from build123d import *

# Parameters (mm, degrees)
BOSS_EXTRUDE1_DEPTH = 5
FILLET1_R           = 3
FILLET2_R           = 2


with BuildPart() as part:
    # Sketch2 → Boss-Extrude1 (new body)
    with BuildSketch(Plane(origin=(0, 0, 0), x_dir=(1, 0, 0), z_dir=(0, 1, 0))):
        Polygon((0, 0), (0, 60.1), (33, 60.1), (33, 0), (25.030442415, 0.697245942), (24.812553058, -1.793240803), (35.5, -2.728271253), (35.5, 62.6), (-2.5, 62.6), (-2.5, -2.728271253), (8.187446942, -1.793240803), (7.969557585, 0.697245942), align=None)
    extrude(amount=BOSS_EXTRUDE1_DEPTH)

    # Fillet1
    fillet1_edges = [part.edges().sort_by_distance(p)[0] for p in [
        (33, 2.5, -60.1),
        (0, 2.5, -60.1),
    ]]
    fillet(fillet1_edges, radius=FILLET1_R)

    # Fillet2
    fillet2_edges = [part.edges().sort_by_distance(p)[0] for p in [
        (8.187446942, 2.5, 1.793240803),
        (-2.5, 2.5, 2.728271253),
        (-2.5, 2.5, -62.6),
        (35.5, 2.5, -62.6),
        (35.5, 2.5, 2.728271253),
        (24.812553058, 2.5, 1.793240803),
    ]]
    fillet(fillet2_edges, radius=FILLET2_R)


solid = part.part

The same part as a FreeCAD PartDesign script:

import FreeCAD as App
import Part
import Sketcher
Q = App.Units.Quantity


def edges_at(feature, points):
    """Names of the edges that pass closest to the given points."""
    edges = feature.Shape.Edges
    near = lambda p: min(range(len(edges)), key=lambda i: edges[i].distToShape(Part.Vertex(*p))[0])
    return sorted({f"Edge{near(p) + 1}" for p in points})

doc = App.newDocument("Part")
body = doc.addObject("PartDesign::Body", "Body")

# Sketch on XZ plane
sketch1 = doc.addObject("Sketcher::SketchObject", "Sketch")
body.addObject(sketch1)
sketch1.AttachmentSupport = (doc.XZ_Plane, [""])
sketch1.MapMode = "FlatFace"
sketch1.addGeometry(Part.LineSegment(App.Vector(0, 0, 0), App.Vector(0, -60.1, 0)), False)
sketch1.addGeometry(Part.LineSegment(App.Vector(0, -60.1, 0), App.Vector(33, -60.1, 0)), False)
sketch1.addGeometry(Part.LineSegment(App.Vector(33, -60.1, 0), App.Vector(33, 0, 0)), False)
sketch1.addGeometry(Part.LineSegment(App.Vector(33, 0, 0), App.Vector(25, -0.7, 0)), False)
sketch1.addGeometry(Part.LineSegment(App.Vector(25, -0.7, 0), App.Vector(24.8, 1.8, 0)), False)
sketch1.addGeometry(Part.LineSegment(App.Vector(24.8, 1.8, 0), App.Vector(35.5, 2.7, 0)), False)
sketch1.addGeometry(Part.LineSegment(App.Vector(35.5, 2.7, 0), App.Vector(35.5, -62.6, 0)), False)
sketch1.addGeometry(Part.LineSegment(App.Vector(35.5, -62.6, 0), App.Vector(-2.5, -62.6, 0)), False)
sketch1.addGeometry(Part.LineSegment(App.Vector(-2.5, -62.6, 0), App.Vector(-2.5, 2.7, 0)), False)
sketch1.addGeometry(Part.LineSegment(App.Vector(-2.5, 2.7, 0), App.Vector(8.2, 1.8, 0)), False)
sketch1.addGeometry(Part.LineSegment(App.Vector(8.2, 1.8, 0), App.Vector(8, -0.7, 0)), False)
sketch1.addGeometry(Part.LineSegment(App.Vector(8, -0.7, 0), App.Vector(0, 0, 0)), False)
sketch1.addConstraint(Sketcher.Constraint("Coincident", 0, 2, 1, 1))
sketch1.addConstraint(Sketcher.Constraint("Coincident", 1, 2, 2, 1))
sketch1.addConstraint(Sketcher.Constraint("Coincident", 2, 2, 3, 1))
sketch1.addConstraint(Sketcher.Constraint("Coincident", 3, 2, 4, 1))
sketch1.addConstraint(Sketcher.Constraint("Coincident", 4, 2, 5, 1))
sketch1.addConstraint(Sketcher.Constraint("Coincident", 5, 2, 6, 1))
sketch1.addConstraint(Sketcher.Constraint("Coincident", 6, 2, 7, 1))
sketch1.addConstraint(Sketcher.Constraint("Coincident", 7, 2, 8, 1))
sketch1.addConstraint(Sketcher.Constraint("Coincident", 8, 2, 9, 1))
sketch1.addConstraint(Sketcher.Constraint("Coincident", 9, 2, 10, 1))
sketch1.addConstraint(Sketcher.Constraint("Coincident", 10, 2, 11, 1))
sketch1.addConstraint(Sketcher.Constraint("Coincident", 11, 2, 0, 1))
sketch1.addConstraint(Sketcher.Constraint("Vertical", 0))
sketch1.addConstraint(Sketcher.Constraint("Horizontal", 1))
sketch1.addConstraint(Sketcher.Constraint("Vertical", 2))
sketch1.addConstraint(Sketcher.Constraint("Vertical", 6))
sketch1.addConstraint(Sketcher.Constraint("Horizontal", 7))
sketch1.addConstraint(Sketcher.Constraint("Vertical", 8))
sketch1.addConstraint(Sketcher.Constraint("Coincident", 11, 2, -1, 1))
sketch1.addConstraint(Sketcher.Constraint("PointOnObject", 2, 2, -1))
sketch1.addConstraint(Sketcher.Constraint("Perpendicular", 3, 4))
sketch1.addConstraint(Sketcher.Constraint("Perpendicular", 4, 5))
sketch1.addConstraint(Sketcher.Constraint("Perpendicular", 9, 10))
sketch1.addConstraint(Sketcher.Constraint("Perpendicular", 10, 11))
sketch1.addConstraint(Sketcher.Constraint("Horizontal", 5, 2, 8, 2))
sketch1.addConstraint(Sketcher.Constraint("Horizontal", 4, 2, 9, 2))
sketch1.addConstraint(Sketcher.Constraint("Horizontal", 3, 2, 10, 2))
sketch1.addConstraint(Sketcher.Constraint("Equal", 5, 9))
sketch1.addConstraint(Sketcher.Constraint("DistanceX", 1, 1, 1, 2, 33.0))
sketch1.addConstraint(Sketcher.Constraint("DistanceX", 7, 2, 7, 1, 38.0))
sketch1.addConstraint(Sketcher.Constraint("Angle", 3, Q("-175 deg")))
sketch1.addConstraint(Sketcher.Constraint("Distance", 3, 8.0))
sketch1.addConstraint(Sketcher.Constraint("DistanceY", 0, 2, 0, 1, 60.1))
sketch1.addConstraint(Sketcher.Constraint("Distance", 4, 2.5))
sketch1.addConstraint(Sketcher.Constraint("DistanceY", 6, 2, -1, 1, 62.6))
pad1 = doc.addObject("PartDesign::Pad", "Pad")
body.addObject(pad1)
pad1.Profile = sketch1
pad1.Length = 5
pad1.Reversed = True
doc.recompute()

fillet = doc.addObject("PartDesign::Fillet", "Fillet")
body.addObject(fillet)
fillet.Base = (pad1, edges_at(pad1, [(33, 2.5, -60.1), (0, 2.5, -60.1)]))
fillet.Radius = 3
doc.recompute()

fillet2 = doc.addObject("PartDesign::Fillet", "Fillet001")
body.addObject(fillet2)
fillet2.Base = (fillet, edges_at(fillet, [
    (8.187, 2.5, 1.793),
    (-2.5, 2.5, 2.728),
    (-2.5, 2.5, -62.6),
    (35.5, 2.5, -62.6),
    (35.5, 2.5, 2.728),
    (24.813, 2.5, 1.793),
]))
fillet2.Radius = 2

doc.recompute()
